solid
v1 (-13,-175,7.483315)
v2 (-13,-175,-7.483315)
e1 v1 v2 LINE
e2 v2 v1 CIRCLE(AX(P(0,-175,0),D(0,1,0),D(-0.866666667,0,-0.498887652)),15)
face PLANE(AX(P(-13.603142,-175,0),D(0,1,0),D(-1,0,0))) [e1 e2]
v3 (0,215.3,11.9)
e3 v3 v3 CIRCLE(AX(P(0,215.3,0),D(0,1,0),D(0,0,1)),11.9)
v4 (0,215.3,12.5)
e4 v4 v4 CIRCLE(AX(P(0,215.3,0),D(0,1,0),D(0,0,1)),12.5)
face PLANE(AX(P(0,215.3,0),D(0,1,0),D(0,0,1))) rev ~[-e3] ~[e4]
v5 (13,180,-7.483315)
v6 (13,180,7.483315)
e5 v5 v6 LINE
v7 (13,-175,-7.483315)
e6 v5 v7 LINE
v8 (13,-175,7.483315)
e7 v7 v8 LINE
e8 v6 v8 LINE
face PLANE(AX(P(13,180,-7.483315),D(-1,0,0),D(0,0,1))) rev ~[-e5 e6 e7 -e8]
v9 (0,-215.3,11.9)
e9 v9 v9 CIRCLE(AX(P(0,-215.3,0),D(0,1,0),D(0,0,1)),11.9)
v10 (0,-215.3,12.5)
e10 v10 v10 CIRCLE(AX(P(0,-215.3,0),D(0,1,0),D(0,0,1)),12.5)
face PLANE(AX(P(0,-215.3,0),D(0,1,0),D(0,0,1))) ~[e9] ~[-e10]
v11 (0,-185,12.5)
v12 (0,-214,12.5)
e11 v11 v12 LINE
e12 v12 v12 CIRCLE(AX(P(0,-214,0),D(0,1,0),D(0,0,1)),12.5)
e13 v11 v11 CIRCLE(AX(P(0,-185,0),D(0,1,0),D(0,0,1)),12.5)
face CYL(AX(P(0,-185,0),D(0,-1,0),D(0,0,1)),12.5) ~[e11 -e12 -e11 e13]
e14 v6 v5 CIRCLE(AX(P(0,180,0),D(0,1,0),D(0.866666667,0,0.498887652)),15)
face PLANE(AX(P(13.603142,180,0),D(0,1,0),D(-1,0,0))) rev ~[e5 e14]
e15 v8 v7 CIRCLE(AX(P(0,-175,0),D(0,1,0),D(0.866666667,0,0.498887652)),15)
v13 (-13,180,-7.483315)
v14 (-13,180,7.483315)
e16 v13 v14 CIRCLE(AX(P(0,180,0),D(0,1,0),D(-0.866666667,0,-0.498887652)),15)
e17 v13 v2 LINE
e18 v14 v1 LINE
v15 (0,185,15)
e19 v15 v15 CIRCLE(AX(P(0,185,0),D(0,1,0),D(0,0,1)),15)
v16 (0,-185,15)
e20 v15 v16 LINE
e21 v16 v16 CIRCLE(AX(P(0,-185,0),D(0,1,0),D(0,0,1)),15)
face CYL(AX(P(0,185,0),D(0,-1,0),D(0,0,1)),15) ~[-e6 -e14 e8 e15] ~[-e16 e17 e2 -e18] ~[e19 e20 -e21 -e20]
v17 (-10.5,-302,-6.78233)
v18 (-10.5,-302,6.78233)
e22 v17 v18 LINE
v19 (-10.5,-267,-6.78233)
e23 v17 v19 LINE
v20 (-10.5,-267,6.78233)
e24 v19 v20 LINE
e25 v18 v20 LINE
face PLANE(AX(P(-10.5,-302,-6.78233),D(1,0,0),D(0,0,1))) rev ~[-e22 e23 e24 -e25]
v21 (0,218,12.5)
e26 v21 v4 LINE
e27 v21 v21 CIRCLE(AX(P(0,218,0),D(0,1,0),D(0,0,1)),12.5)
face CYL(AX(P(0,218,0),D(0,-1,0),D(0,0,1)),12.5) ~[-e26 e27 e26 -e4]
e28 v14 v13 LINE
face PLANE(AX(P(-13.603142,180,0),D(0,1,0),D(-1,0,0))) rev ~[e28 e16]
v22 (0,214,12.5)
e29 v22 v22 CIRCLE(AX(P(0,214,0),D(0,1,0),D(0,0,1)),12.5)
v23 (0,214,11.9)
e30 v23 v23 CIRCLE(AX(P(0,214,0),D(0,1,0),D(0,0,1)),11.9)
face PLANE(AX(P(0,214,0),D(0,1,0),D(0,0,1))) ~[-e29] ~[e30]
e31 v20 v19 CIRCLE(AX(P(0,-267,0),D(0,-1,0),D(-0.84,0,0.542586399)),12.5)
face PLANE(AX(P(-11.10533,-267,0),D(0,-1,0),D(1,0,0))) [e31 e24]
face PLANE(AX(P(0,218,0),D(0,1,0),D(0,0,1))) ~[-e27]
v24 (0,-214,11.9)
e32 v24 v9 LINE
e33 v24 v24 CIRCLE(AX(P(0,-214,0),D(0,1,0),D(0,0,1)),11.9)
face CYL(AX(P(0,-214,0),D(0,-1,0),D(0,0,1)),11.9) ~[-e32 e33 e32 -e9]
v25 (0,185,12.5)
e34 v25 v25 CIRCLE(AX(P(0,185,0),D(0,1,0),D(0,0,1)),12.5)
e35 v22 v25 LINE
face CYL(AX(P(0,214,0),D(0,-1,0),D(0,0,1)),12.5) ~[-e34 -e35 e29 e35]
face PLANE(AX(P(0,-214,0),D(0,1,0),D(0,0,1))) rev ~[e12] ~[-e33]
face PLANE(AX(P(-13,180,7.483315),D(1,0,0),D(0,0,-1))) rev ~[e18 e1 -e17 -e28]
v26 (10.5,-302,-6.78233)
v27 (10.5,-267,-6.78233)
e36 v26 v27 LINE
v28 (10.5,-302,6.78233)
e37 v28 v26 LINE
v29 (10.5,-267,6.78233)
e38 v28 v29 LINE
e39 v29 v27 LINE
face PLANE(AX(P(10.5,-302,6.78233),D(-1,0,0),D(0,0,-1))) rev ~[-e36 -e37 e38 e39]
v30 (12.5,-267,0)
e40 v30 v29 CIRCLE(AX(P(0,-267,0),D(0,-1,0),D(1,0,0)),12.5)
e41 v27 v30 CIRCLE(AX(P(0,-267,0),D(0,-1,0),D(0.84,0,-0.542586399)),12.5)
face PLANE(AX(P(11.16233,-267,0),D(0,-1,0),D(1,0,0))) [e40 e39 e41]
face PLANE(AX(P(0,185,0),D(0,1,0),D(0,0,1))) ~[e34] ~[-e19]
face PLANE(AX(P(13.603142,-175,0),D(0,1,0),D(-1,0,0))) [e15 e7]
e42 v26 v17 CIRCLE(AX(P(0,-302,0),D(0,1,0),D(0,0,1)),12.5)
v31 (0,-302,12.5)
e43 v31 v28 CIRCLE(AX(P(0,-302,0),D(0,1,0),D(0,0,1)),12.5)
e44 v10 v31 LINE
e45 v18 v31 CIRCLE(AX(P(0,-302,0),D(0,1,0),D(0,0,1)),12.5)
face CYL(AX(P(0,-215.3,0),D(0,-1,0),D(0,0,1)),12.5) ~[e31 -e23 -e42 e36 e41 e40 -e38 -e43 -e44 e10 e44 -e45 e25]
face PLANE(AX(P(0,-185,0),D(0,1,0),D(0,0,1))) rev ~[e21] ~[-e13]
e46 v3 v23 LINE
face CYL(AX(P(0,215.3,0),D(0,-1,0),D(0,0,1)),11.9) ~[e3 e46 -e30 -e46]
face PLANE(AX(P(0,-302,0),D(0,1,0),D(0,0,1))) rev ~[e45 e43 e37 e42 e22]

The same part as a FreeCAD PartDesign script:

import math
import FreeCAD as App
import Part
import Sketcher

doc = App.newDocument("Part")
body = doc.addObject("PartDesign::Body", "Body")

# Sketch on YZ plane
sketch1 = doc.addObject("Sketcher::SketchObject", "Sketch")
body.addObject(sketch1)
sketch1.AttachmentSupport = (doc.YZ_Plane, [""])
sketch1.MapMode = "FlatFace"
sketch1.addGeometry([
    Part.LineSegment(App.Vector(-185, 12.5, 0), App.Vector(-214, 12.5, 0)),  # 0
    Part.LineSegment(App.Vector(-214, 12.5, 0), App.Vector(-214, 11.9, 0)),  # 1
    Part.LineSegment(App.Vector(-214, 11.9, 0), App.Vector(-215.3, 11.9, 0)),  # 2
    Part.LineSegment(App.Vector(-215.3, 11.9, 0), App.Vector(-215.3, 12.5, 0)),  # 3
    Part.LineSegment(App.Vector(-215.3, 12.5, 0), App.Vector(-302, 12.5, 0)),  # 4
    Part.LineSegment(App.Vector(-302, 12.5, 0), App.Vector(-302, 0, 0)),  # 5
    Part.LineSegment(App.Vector(-302, 0, 0), App.Vector(218, 0, 0)),  # 6
    Part.LineSegment(App.Vector(218, 0, 0), App.Vector(218, 12.5, 0)),  # 7
    Part.LineSegment(App.Vector(218, 12.5, 0), App.Vector(215.3, 12.5, 0)),  # 8
    Part.LineSegment(App.Vector(215.3, 12.5, 0), App.Vector(215.3, 11.9, 0)),  # 9
    Part.LineSegment(App.Vector(215.3, 11.9, 0), App.Vector(214, 11.9, 0)),  # 10
    Part.LineSegment(App.Vector(214, 11.9, 0), App.Vector(214, 12.5, 0)),  # 11
    Part.LineSegment(App.Vector(214, 12.5, 0), App.Vector(185, 12.5, 0)),  # 12
    Part.LineSegment(App.Vector(185, 12.5, 0), App.Vector(185, 15, 0)),  # 13
    Part.LineSegment(App.Vector(185, 15, 0), App.Vector(-185, 15, 0)),  # 14
    Part.LineSegment(App.Vector(-185, 15, 0), App.Vector(-185, 12.5, 0)),  # 15
], False)
sketch1.addConstraint([
    Sketcher.Constraint("Coincident", 0, 2, 1, 1),
    Sketcher.Constraint("Coincident", 1, 2, 2, 1),
    Sketcher.Constraint("Coincident", 2, 2, 3, 1),
    Sketcher.Constraint("Coincident", 3, 2, 4, 1),
    Sketcher.Constraint("Coincident", 4, 2, 5, 1),
    Sketcher.Constraint("Coincident", 5, 2, 6, 1),
    Sketcher.Constraint("Coincident", 6, 2, 7, 1),
    Sketcher.Constraint("Coincident", 7, 2, 8, 1),
    Sketcher.Constraint("Coincident", 8, 2, 9, 1),
    Sketcher.Constraint("Coincident", 9, 2, 10, 1),
    Sketcher.Constraint("Coincident", 10, 2, 11, 1),
    Sketcher.Constraint("Coincident", 11, 2, 12, 1),
    Sketcher.Constraint("Coincident", 12, 2, 13, 1),
    Sketcher.Constraint("Coincident", 13, 2, 14, 1),
    Sketcher.Constraint("Coincident", 14, 2, 15, 1),
    Sketcher.Constraint("Coincident", 15, 2, 0, 1),
    Sketcher.Constraint("Horizontal", 0),
    Sketcher.Constraint("Vertical", 1),
    Sketcher.Constraint("Horizontal", 2),
    Sketcher.Constraint("Vertical", 3),
    Sketcher.Constraint("Horizontal", 4),
    Sketcher.Constraint("Vertical", 5),
    Sketcher.Constraint("Horizontal", 6),
    Sketcher.Constraint("Vertical", 7),
    Sketcher.Constraint("Horizontal", 8),
    Sketcher.Constraint("Vertical", 9),
    Sketcher.Constraint("Horizontal", 10),
    Sketcher.Constraint("Vertical", 11),
    Sketcher.Constraint("Horizontal", 12),
    Sketcher.Constraint("Vertical", 13),
    Sketcher.Constraint("Horizontal", 14),
    Sketcher.Constraint("Vertical", 15),
    Sketcher.Constraint("Symmetric", 3, 2, 8, 2, -2),
    Sketcher.Constraint("Symmetric", 1, 2, 10, 2, -2),
    Sketcher.Constraint("Symmetric", 12, 2, 15, 2, -2),
    Sketcher.Constraint("PointOnObject", 5, 2, -1),
    Sketcher.Constraint("Horizontal", 0, 2, 3, 2),
    Sketcher.Constraint("DistanceX", 0, 2, 0, 1, 29.0),
    Sketcher.Constraint("DistanceX", 6, 1, 6, 2, 520.0),
    Sketcher.Constraint("DistanceX", 14, 2, 14, 1, 370.0),
    Sketcher.Constraint("DistanceX", 2, 2, 2, 1, 1.3),
    Sketcher.Constraint("DistanceX", 4, 2, 4, 1, 86.7),
    Sketcher.Constraint("DistanceY", 1, 2, 1, 1, 0.6),
    Sketcher.Constraint("DistanceY", 5, 2, 5, 1, 12.5),
    Sketcher.Constraint("DistanceY", 13, 1, 13, 2, 2.5),
])
revolution = doc.addObject("PartDesign::Revolution", "Revolution")
body.addObject(revolution)
revolution.Profile = sketch1
revolution.ReferenceAxis = (sketch1, ["H_Axis"])
revolution.Angle = 360

# Sketch on XZ plane
sketch2 = doc.addObject("Sketcher::SketchObject", "Sketch001")
body.addObject(sketch2)
sketch2.AttachmentSupport = (doc.XZ_Plane, [""])
sketch2.MapMode = "FlatFace"
sketch2.AttachmentOffset = App.Placement(App.Vector(0, 0, 302), App.Rotation())
sketch2.addGeometry([
    Part.LineSegment(App.Vector(-10.5, -6.78233, 0), App.Vector(-10.5, 6.78233, 0)),  # 0
    Part.ArcOfCircle(Part.Circle(App.Vector(0, 0, 0), App.Vector(0, 0, 1), 12.5), math.radians(147.14012), math.radians(212.85988)),  # 1
    Part.ArcOfCircle(Part.Circle(App.Vector(0, 0, 0), App.Vector(0, 0, 1), 12.5), math.radians(0), math.radians(32.85988)),  # 2
    Part.LineSegment(App.Vector(10.5, 6.78233, 0), App.Vector(10.5, -6.78233, 0)),  # 3
    Part.ArcOfCircle(Part.Circle(App.Vector(0, 0, 0), App.Vector(0, 0, 1), 12.5), math.radians(-32.85988), math.radians(0)),  # 4
], False)
sketch2.addConstraint([
    Sketcher.Constraint("Coincident", 0, 1, 1, 2),
    Sketcher.Constraint("Coincident", 1, 1, 0, 2),
    Sketcher.Constraint("Coincident", 2, 2, 3, 1),
    Sketcher.Constraint("Coincident", 3, 2, 4, 1),
    Sketcher.Constraint("Tangent", 4, 2, 2, 1),
    Sketcher.Constraint("Vertical", 0),
    Sketcher.Constraint("Vertical", 3),
    Sketcher.Constraint("Coincident", 1, 3, -1, 1),
    Sketcher.Constraint("Coincident", 2, 3, -1, 1),
    Sketcher.Constraint("Equal", 1, 2),
    Sketcher.Constraint("Equal", 2, 4),
    Sketcher.Constraint("PointOnObject", 4, 2, -1),
    Sketcher.Constraint("Horizontal", 1, 1, 2, 2),
    Sketcher.Constraint("Radius", 1, 12.5),
    Sketcher.Constraint("DistanceX", 1, 1, 2, 2, 21.0),
])
pocket1 = doc.addObject("PartDesign::Pocket", "Pocket")
body.addObject(pocket1)
pocket1.Profile = sketch2
pocket1.Length = 35

# Sketch on XZ plane
sketch3 = doc.addObject("Sketcher::SketchObject", "Sketch002")
body.addObject(sketch3)
sketch3.AttachmentSupport = (doc.XZ_Plane, [""])
sketch3.MapMode = "FlatFace"
sketch3.AttachmentOffset = App.Placement(App.Vector(0, 0, -180), App.Rotation())
sketch3.addGeometry([
    Part.LineSegment(App.Vector(13, -7.483315, 0), App.Vector(13, 7.483315, 0)),
    Part.ArcOfCircle(Part.Circle(App.Vector(0, 0, 0), App.Vector(0, 0, 1), 15), math.radians(-29.926435), math.radians(29.926435)),
    Part.ArcOfCircle(Part.Circle(App.Vector(0, 0, 0), App.Vector(0, 0, 1), 15), math.radians(150.073565), math.radians(209.926435)),
    Part.LineSegment(App.Vector(-13, 7.483315, 0), App.Vector(-13, -7.483315, 0)),
], False)
sketch3.addConstraint([
    Sketcher.Constraint("Coincident", 0, 1, 1, 1),
    Sketcher.Constraint("Coincident", 1, 2, 0, 2),
    Sketcher.Constraint("Coincident", 2, 1, 3, 1),
    Sketcher.Constraint("Coincident", 3, 2, 2, 2),
    Sketcher.Constraint("Vertical", 0),
    Sketcher.Constraint("Vertical", 3),
    Sketcher.Constraint("Coincident", 1, 3, -1, 1),
    Sketcher.Constraint("Coincident", 2, 3, -1, 1),
    Sketcher.Constraint("Equal", 1, 2),
    Sketcher.Constraint("Horizontal", 1, 2, 2, 1),
    Sketcher.Constraint("Radius", 1, 15.0),
    Sketcher.Constraint("DistanceX", -1, 1, 0, 1, 13.0),
])
pocket2 = doc.addObject("PartDesign::Pocket", "Pocket001")
body.addObject(pocket2)
pocket2.Profile = sketch3
pocket2.Length = 355
pocket2.Reversed = True

doc.recompute()
